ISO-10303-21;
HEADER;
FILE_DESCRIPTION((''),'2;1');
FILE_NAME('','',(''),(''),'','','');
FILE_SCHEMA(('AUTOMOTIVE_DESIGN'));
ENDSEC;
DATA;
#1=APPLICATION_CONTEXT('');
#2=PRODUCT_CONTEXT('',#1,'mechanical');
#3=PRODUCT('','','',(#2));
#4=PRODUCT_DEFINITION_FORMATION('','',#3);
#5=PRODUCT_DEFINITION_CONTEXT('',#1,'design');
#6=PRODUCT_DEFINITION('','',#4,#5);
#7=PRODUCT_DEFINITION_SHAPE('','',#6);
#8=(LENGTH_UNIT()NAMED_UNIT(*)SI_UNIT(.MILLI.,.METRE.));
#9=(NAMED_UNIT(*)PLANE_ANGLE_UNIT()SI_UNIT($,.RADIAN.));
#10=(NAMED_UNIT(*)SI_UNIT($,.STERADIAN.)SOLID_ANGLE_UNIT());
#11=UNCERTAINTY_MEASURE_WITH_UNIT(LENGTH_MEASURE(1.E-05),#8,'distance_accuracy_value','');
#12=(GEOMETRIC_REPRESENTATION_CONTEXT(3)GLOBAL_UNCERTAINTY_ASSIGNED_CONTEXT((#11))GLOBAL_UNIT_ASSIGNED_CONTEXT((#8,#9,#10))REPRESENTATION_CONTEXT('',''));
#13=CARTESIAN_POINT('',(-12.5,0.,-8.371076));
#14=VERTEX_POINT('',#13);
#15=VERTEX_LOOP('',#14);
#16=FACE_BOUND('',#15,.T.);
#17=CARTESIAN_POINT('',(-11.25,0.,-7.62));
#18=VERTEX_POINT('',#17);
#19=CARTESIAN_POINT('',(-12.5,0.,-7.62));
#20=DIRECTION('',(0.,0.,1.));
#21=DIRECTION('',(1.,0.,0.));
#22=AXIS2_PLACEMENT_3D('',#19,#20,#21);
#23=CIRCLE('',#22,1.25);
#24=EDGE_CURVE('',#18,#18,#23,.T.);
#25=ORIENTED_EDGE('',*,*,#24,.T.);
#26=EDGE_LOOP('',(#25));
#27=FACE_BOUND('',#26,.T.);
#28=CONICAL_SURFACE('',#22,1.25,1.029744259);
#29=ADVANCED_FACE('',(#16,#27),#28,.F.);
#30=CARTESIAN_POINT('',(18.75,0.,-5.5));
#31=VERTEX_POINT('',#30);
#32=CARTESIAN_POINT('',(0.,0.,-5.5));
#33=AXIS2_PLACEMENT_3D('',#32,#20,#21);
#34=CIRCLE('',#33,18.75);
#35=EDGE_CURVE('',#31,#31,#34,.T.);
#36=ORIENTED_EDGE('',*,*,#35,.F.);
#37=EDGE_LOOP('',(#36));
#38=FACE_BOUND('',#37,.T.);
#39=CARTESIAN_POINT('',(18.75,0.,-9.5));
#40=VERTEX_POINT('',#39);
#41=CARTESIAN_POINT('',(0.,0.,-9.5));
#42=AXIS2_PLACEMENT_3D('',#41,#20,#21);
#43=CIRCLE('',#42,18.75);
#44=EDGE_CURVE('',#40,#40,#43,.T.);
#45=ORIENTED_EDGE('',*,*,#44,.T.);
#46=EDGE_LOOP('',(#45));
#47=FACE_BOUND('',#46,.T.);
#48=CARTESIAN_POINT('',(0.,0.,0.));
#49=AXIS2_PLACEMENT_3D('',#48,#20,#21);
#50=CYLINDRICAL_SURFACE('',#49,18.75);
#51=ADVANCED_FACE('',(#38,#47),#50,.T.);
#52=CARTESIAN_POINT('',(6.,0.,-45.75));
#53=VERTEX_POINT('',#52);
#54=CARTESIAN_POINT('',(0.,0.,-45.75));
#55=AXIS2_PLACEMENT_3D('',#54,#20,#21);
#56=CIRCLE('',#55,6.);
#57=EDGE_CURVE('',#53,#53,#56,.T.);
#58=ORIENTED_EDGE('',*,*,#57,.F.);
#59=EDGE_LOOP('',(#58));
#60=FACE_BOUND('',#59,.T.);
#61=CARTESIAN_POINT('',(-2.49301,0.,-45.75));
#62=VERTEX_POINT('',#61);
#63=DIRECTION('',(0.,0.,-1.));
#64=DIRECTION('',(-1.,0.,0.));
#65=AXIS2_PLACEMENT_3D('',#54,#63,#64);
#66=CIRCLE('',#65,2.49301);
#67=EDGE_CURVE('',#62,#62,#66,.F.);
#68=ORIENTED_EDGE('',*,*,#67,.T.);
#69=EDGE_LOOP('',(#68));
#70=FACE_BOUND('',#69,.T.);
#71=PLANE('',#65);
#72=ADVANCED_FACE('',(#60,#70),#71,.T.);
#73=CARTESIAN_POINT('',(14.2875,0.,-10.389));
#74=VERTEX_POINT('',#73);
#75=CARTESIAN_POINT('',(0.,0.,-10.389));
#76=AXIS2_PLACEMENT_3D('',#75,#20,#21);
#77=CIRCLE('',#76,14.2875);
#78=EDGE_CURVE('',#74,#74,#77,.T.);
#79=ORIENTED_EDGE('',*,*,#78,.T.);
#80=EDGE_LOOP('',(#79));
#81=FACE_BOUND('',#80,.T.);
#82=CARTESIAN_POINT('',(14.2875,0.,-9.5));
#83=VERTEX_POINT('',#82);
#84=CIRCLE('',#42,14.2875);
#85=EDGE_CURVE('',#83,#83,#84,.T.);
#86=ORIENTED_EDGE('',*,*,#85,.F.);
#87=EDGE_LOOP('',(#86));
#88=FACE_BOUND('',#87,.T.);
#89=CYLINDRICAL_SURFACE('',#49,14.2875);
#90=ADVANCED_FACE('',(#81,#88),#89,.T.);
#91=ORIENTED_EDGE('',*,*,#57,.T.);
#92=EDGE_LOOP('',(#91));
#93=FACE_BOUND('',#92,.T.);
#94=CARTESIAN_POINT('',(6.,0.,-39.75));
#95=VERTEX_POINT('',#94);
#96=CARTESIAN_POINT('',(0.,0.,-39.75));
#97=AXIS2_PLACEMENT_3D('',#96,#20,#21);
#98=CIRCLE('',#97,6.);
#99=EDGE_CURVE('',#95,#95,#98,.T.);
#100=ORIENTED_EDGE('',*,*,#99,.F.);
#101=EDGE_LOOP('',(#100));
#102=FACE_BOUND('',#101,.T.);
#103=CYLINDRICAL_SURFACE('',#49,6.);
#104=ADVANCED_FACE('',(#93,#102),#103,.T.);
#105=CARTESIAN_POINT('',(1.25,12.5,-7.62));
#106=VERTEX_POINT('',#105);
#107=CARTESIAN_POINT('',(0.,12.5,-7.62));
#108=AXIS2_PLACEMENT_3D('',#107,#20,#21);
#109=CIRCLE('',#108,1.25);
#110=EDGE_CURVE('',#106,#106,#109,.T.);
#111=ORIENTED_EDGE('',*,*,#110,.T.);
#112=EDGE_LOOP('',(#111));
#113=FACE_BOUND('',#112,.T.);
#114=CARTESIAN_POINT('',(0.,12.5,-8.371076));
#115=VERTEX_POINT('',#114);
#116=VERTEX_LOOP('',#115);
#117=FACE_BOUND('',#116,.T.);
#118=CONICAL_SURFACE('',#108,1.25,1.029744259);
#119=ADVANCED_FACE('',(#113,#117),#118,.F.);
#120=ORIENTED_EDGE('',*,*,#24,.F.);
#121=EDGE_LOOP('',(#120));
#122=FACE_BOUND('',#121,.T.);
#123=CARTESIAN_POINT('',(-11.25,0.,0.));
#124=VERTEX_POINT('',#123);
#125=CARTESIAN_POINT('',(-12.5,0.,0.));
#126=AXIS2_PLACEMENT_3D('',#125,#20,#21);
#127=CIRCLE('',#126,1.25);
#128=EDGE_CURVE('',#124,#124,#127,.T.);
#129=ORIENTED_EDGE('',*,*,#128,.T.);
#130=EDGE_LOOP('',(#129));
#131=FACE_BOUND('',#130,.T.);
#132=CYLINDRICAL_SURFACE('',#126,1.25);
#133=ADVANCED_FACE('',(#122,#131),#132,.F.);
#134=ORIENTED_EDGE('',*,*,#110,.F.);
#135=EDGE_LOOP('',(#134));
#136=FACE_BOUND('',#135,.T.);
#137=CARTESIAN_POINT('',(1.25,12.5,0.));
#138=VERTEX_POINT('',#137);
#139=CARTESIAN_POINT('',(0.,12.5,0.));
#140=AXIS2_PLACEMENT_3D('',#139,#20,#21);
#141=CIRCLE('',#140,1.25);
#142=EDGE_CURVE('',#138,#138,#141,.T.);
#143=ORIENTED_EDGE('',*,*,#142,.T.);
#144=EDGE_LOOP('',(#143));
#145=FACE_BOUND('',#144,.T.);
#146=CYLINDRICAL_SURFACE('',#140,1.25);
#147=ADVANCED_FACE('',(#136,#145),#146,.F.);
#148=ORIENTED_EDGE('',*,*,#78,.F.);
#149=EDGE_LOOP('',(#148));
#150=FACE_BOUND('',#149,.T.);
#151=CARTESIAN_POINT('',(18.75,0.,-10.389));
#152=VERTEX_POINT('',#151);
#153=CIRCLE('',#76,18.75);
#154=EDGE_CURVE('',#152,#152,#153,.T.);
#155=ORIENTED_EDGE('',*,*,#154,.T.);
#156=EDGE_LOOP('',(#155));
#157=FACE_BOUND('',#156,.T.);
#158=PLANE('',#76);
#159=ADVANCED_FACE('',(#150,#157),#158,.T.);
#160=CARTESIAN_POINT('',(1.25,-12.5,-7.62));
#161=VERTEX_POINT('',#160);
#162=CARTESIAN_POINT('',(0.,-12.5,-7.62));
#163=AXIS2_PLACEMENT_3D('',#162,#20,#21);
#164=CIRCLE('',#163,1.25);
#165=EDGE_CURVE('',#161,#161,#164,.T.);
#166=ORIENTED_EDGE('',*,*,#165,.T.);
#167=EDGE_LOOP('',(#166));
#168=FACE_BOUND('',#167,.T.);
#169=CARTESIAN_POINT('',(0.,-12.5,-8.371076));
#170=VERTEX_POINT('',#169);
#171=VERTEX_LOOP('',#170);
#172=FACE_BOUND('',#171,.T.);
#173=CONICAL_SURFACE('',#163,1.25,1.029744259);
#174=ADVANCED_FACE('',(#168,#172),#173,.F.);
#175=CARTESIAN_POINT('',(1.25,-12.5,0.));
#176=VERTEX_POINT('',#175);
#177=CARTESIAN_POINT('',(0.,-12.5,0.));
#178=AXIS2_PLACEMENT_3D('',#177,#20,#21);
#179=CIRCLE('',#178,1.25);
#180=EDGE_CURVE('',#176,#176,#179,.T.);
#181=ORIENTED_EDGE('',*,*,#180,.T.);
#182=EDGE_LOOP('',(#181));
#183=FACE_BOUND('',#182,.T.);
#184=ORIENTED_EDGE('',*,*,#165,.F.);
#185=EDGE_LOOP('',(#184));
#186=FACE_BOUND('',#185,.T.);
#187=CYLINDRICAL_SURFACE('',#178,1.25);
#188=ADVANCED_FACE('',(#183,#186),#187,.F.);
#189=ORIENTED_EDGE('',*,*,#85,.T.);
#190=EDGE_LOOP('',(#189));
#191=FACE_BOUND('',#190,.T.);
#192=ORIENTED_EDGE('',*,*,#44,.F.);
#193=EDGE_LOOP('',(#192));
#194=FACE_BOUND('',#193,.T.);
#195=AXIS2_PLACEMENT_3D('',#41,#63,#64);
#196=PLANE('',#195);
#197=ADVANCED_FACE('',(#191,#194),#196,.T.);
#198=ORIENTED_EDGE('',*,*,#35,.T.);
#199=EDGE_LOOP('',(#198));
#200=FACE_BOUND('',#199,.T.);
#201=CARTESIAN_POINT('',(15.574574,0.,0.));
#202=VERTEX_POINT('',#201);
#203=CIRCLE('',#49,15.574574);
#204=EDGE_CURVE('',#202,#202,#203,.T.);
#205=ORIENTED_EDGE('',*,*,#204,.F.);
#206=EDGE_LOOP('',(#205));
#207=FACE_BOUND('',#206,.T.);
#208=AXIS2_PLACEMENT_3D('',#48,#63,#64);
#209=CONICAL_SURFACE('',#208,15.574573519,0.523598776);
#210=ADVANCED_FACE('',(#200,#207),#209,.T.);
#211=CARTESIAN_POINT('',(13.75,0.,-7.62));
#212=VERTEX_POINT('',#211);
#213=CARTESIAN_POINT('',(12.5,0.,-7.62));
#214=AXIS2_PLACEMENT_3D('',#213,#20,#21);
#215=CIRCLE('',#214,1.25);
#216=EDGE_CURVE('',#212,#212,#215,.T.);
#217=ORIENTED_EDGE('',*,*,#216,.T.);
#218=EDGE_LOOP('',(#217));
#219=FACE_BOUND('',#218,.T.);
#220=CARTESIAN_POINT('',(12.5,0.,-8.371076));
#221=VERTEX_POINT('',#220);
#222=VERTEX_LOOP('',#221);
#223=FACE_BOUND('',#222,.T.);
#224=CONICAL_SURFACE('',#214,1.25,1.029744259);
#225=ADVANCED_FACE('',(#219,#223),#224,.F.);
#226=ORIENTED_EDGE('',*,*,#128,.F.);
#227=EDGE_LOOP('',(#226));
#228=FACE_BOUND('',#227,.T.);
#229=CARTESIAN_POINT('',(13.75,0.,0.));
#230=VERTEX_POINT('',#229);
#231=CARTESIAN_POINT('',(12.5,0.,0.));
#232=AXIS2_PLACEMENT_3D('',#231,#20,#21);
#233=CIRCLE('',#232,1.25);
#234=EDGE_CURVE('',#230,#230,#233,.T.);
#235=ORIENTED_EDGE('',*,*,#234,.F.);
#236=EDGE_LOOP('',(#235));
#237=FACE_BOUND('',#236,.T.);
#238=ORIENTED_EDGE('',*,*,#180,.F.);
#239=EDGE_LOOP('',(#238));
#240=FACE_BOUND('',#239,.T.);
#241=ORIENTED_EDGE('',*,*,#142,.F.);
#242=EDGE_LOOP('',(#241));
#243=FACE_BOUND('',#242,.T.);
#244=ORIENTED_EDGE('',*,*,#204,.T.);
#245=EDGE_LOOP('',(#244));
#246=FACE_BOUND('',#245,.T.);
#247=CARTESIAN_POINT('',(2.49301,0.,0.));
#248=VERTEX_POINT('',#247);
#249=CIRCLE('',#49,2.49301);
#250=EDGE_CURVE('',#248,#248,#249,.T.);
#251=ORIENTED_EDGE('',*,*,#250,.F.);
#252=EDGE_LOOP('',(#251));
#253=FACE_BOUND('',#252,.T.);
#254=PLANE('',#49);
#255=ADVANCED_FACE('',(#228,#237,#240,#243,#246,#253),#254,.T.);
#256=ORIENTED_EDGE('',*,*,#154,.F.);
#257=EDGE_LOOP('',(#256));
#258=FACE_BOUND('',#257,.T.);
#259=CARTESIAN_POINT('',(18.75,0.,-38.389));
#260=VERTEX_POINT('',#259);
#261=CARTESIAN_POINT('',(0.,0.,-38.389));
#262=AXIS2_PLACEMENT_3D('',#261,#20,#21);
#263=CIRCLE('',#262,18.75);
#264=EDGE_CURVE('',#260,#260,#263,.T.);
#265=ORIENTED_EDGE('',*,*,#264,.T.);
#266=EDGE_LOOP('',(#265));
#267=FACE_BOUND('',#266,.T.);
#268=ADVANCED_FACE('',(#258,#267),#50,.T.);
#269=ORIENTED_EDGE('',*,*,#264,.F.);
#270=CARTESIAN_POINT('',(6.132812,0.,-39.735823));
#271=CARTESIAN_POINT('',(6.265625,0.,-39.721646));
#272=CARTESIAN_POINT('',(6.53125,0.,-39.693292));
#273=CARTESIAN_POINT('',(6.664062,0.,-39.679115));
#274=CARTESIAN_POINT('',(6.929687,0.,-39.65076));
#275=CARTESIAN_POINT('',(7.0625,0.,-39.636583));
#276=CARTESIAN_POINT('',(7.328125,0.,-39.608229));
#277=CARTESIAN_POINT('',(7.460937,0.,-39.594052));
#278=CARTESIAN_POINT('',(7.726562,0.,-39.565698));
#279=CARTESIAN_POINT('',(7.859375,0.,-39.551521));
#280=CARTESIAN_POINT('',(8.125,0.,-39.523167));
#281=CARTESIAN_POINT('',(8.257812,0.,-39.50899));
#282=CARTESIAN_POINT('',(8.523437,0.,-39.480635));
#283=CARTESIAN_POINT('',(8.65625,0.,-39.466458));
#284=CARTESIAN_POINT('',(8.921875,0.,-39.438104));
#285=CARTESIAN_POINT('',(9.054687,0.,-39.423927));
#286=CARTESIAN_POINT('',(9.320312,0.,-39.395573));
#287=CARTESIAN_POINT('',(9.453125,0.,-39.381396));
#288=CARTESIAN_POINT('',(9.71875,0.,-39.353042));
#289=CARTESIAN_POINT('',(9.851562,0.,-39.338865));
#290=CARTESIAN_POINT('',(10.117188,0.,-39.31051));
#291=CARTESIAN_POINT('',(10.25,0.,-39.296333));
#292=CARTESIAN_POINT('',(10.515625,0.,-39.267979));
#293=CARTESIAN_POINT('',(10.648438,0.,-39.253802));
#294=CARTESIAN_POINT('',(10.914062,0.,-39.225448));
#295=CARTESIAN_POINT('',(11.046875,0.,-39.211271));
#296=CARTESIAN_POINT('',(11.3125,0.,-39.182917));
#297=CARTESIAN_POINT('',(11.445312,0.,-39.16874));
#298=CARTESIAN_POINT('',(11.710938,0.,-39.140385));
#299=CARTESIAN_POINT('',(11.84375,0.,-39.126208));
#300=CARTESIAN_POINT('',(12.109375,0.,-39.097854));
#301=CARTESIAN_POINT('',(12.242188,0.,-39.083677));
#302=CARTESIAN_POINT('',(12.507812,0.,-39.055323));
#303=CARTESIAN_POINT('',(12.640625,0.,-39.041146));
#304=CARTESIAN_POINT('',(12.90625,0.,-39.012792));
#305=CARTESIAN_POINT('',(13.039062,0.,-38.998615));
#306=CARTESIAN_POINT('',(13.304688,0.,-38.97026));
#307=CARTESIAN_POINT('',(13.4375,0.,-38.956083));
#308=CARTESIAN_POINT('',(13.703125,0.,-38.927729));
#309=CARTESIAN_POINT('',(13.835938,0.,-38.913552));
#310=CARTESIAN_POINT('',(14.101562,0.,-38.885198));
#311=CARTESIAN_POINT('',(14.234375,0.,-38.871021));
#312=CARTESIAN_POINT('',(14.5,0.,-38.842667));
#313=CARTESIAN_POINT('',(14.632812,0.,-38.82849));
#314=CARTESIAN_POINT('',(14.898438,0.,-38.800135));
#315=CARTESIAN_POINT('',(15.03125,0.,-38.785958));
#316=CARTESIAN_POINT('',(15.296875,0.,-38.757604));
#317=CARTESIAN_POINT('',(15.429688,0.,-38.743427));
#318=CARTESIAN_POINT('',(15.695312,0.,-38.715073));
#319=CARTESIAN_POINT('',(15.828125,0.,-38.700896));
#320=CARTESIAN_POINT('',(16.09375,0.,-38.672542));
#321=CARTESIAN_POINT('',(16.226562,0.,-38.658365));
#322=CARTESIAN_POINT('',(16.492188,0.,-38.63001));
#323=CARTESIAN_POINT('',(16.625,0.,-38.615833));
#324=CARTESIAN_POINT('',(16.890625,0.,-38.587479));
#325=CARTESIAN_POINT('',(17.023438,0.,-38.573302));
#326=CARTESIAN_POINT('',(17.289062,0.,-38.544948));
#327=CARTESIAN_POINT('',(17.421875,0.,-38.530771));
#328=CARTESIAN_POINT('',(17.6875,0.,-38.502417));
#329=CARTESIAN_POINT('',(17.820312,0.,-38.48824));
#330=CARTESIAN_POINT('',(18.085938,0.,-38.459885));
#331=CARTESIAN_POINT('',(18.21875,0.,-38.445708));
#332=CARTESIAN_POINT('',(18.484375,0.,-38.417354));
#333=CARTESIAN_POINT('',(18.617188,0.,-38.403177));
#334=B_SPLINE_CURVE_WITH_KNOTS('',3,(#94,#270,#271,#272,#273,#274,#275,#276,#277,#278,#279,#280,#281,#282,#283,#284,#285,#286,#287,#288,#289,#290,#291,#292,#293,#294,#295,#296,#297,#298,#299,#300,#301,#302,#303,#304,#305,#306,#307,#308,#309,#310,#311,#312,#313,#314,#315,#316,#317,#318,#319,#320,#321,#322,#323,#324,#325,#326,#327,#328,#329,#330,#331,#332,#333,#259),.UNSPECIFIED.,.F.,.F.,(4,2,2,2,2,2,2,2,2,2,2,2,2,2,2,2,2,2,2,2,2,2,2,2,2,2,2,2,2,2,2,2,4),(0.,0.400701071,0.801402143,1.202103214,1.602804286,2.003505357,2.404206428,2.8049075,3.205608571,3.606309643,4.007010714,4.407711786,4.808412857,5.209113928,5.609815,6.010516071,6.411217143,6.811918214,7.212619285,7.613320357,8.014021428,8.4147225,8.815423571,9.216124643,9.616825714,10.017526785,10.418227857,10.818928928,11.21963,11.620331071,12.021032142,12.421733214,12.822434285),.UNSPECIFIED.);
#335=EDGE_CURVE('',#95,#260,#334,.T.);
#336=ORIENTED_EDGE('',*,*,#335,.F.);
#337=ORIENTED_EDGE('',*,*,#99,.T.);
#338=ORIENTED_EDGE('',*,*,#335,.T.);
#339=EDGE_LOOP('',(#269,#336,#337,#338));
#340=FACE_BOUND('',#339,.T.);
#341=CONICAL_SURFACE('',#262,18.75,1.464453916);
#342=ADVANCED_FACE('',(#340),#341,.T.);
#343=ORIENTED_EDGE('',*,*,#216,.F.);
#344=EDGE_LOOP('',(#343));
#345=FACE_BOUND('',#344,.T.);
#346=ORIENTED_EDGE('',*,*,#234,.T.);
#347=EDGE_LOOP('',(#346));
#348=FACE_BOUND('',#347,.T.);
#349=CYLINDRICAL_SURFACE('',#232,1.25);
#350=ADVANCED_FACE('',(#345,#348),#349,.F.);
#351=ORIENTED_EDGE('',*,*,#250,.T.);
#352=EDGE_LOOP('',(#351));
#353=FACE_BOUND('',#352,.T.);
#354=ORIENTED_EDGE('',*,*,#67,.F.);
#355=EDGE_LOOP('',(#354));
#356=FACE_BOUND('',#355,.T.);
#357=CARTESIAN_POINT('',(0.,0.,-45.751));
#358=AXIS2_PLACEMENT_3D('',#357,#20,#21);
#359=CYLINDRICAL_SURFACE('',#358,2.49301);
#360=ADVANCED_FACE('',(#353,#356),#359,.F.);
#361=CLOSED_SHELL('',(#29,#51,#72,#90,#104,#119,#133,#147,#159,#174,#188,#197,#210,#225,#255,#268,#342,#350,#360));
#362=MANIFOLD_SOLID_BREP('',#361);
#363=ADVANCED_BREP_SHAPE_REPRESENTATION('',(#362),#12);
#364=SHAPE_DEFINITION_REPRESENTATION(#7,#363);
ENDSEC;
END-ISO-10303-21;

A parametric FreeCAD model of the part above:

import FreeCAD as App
import Part
import Sketcher
from FreeCAD import Vector
Q = App.Units.Quantity


def add_polygon(sketch, points):
    """Adds a closed chain of lines whose ends are joined by coincident constraints."""
    first, n = sketch.GeometryCount, len(points)
    for a, b in zip(points, points[1:] + points[:1]):
        sketch.addGeometry(Part.LineSegment(App.Vector(*a, 0), App.Vector(*b, 0)), False)
    for i in range(n):
        sketch.addConstraint(Sketcher.Constraint("Coincident", first + i, 2, first + (i + 1) % n, 1))

doc = App.newDocument("Part")
body = doc.addObject("PartDesign::Body", "Body")

sketch1 = body.newObject("Sketcher::SketchObject", "Sketch")
sketch1.AttachmentSupport = (doc.getObject("YZ_Plane"), [""])
sketch1.MapMode = "FlatFace"
add_polygon(sketch1, [(15.574574, 0), (0, 0), (0, -45.75), (6, -45.75), (6, -39.75), (18.75, -38.389), (18.75, -10.389), (14.2875, -10.389), (14.2875, -9.5), (18.75, -9.5), (18.75, -5.5)])
sketch1.addConstraint([
    Sketcher.Constraint("Horizontal", 0),
    Sketcher.Constraint("Vertical", 1),
    Sketcher.Constraint("Horizontal", 2),
    Sketcher.Constraint("Vertical", 3),
    Sketcher.Constraint("Vertical", 5),
    Sketcher.Constraint("Horizontal", 6),
    Sketcher.Constraint("Vertical", 7),
    Sketcher.Constraint("Horizontal", 8),
    Sketcher.Constraint("Vertical", 9),
    Sketcher.Constraint("Coincident", 0, 2, -1, 1),
    Sketcher.Constraint("Vertical", 5, 2, 8, 2),
    Sketcher.Constraint("Equal", 2, 3),
    Sketcher.Constraint("DistanceX", 2, 1, 2, 2, Q("6 mm")),
    Sketcher.Constraint("DistanceY", 5, 1, 5, 2, Q("28 mm")),
    Sketcher.Constraint("DistanceY", 9, 1, 9, 2, Q("4 mm")),
    Sketcher.Constraint("Angle", 10, Q("120 deg")),
    Sketcher.Constraint("DistanceY", 1, 2, 1, 1, Q("45.75 mm")),
    Sketcher.Constraint("DistanceY", 7, 2, -1, 1, Q("9.5 mm")),
    Sketcher.Constraint("DistanceY", 7, 1, 7, 2, Q("0.889 mm")),
    Sketcher.Constraint("DistanceX", -1, 1, 4, 2, Q("18.75 mm")),
    Sketcher.Constraint("DistanceX", 6, 2, 6, 1, Q("4.4625 mm")),
])
revolution = body.newObject("PartDesign::Revolution", "Revolution")
revolution.Profile = sketch1
revolution.ReferenceAxis = (sketch1, ["V_Axis"])
revolution.Angle = 360

sketch2 = body.newObject("Sketcher::SketchObject", "Sketch001")
sketch2.AttachmentSupport = (doc.getObject("XY_Plane"), [""])
sketch2.MapMode = "FlatFace"
sketch2.addGeometry([
    Part.Circle(Vector(0, 12.5, 0), Vector(0, 0, 1), 1.25),
    Part.Circle(Vector(12.5, 0, 0), Vector(0, 0, 1), 1.25),
    Part.Circle(Vector(-12.5, 0, 0), Vector(0, 0, 1), 1.25),
    Part.Circle(Vector(0, -12.5, 0), Vector(0, 0, 1), 1.25),
], False)
sketch2.addConstraint([
    Sketcher.Constraint("Equal", 0, 1),
    Sketcher.Constraint("Equal", 1, 2),
    Sketcher.Constraint("Equal", 2, 3),
    Sketcher.Constraint("Symmetric", 1, 3, 2, 3, -1, 1),
    Sketcher.Constraint("Symmetric", 0, 3, 3, 3, -1, 1),
    Sketcher.Constraint("PointOnObject", 0, 3, -2),
    Sketcher.Constraint("PointOnObject", 1, 3, -1),
    Sketcher.Constraint("Diameter", 0, Q("2.5 mm")),
    Sketcher.Constraint("DistanceX", 2, 3, 1, 3, Q("25 mm")),
    Sketcher.Constraint("DistanceY", 3, 3, 0, 3, Q("25 mm")),
])
doc.recompute()
hole = body.newObject("PartDesign::Hole", "Hole")
hole.Profile = sketch2
hole.ThreadType = "None"
hole.Diameter = 2.5
hole.DepthType = "Dimension"
hole.Depth = 7.62
hole.DrillPoint = "Angled"
hole.DrillPointAngle = 118

sketch3 = body.newObject("Sketcher::SketchObject", "Sketch002")
sketch3.AttachmentSupport = (doc.getObject("XY_Plane"), [""])
sketch3.MapMode = "FlatFace"
sketch3.addGeometry(Part.Circle(Vector(0, 0, 0), Vector(0, 0, 1), 2.49301), False)
sketch3.addConstraint([
    Sketcher.Constraint("Coincident", 0, 3, -1, 1),
    Sketcher.Constraint("Diameter", 0, Q("4.98602 mm")),
])
pocket1 = body.newObject("PartDesign::Pocket", "Pocket")
pocket1.Profile = sketch3
pocket1.Type = "UpToFirst"

doc.recompute()
